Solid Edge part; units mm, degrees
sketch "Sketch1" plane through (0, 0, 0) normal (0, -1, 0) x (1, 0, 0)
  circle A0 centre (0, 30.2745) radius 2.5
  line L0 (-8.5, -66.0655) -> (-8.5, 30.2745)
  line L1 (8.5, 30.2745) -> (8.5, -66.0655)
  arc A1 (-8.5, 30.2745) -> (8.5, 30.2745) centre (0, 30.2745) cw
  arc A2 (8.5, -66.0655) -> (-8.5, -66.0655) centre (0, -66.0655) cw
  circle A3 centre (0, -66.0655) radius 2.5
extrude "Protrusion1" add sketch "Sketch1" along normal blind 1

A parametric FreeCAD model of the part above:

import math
import FreeCAD as App
import Part
import Sketcher
Q = App.Units.Quantity

doc = App.newDocument("Part")
body = doc.addObject("PartDesign::Body", "Body")

# Sketch on XZ plane
sketch1 = body.newObject("Sketcher::SketchObject", "Sketch")
sketch1.AttachmentSupport = (doc.getObject("XZ_Plane"), [""])
sketch1.MapMode = "FlatFace"
sketch1.addGeometry([
    Part.LineSegment(App.Vector(-8.5, 30.3, 0), App.Vector(-8.5, -66.1, 0)),  # 0
    Part.ArcOfCircle(Part.Circle(App.Vector(0, -66.1, 0), App.Vector(0, 0, 1), 8.5), math.radians(180), math.radians(360)),  # 1
    Part.LineSegment(App.Vector(8.5, -66.1, 0), App.Vector(8.5, 30.3, 0)),  # 2
    Part.ArcOfCircle(Part.Circle(App.Vector(0, 30.3, 0), App.Vector(0, 0, 1), 8.5), math.radians(0), math.radians(180)),  # 3
    Part.Circle(App.Vector(0, -66.1, 0), App.Vector(0, 0, 1), 2.5),  # 4
    Part.Circle(App.Vector(0, 30.3, 0), App.Vector(0, 0, 1), 2.5),  # 5
], False)
sketch1.addConstraint([
    Sketcher.Constraint("Tangent", 0, 2, 1, 1),
    Sketcher.Constraint("Tangent", 1, 2, 2, 1),
    Sketcher.Constraint("Tangent", 2, 2, 3, 1),
    Sketcher.Constraint("Tangent", 3, 2, 0, 1),
    Sketcher.Constraint("Vertical", 0),
    Sketcher.Constraint("Vertical", 2),
    Sketcher.Constraint("Coincident", 4, 3, 1, 3),
    Sketcher.Constraint("Coincident", 5, 3, 3, 3),
    Sketcher.Constraint("Equal", 4, 5),
    Sketcher.Constraint("PointOnObject", 1, 3, -2),
    Sketcher.Constraint("Diameter", 4, Q("5 mm")),
    Sketcher.Constraint("Radius", 1, Q("8.5 mm")),
    Sketcher.Constraint("DistanceY", 0, 2, 0, 1, Q("96.34 mm")),
    Sketcher.Constraint("DistanceY", 1, 3, -1, 1, Q("66.0655 mm")),
])
pad1 = body.newObject("PartDesign::Pad", "Pad")
pad1.Profile = sketch1
pad1.Length = 1

doc.recompute()
